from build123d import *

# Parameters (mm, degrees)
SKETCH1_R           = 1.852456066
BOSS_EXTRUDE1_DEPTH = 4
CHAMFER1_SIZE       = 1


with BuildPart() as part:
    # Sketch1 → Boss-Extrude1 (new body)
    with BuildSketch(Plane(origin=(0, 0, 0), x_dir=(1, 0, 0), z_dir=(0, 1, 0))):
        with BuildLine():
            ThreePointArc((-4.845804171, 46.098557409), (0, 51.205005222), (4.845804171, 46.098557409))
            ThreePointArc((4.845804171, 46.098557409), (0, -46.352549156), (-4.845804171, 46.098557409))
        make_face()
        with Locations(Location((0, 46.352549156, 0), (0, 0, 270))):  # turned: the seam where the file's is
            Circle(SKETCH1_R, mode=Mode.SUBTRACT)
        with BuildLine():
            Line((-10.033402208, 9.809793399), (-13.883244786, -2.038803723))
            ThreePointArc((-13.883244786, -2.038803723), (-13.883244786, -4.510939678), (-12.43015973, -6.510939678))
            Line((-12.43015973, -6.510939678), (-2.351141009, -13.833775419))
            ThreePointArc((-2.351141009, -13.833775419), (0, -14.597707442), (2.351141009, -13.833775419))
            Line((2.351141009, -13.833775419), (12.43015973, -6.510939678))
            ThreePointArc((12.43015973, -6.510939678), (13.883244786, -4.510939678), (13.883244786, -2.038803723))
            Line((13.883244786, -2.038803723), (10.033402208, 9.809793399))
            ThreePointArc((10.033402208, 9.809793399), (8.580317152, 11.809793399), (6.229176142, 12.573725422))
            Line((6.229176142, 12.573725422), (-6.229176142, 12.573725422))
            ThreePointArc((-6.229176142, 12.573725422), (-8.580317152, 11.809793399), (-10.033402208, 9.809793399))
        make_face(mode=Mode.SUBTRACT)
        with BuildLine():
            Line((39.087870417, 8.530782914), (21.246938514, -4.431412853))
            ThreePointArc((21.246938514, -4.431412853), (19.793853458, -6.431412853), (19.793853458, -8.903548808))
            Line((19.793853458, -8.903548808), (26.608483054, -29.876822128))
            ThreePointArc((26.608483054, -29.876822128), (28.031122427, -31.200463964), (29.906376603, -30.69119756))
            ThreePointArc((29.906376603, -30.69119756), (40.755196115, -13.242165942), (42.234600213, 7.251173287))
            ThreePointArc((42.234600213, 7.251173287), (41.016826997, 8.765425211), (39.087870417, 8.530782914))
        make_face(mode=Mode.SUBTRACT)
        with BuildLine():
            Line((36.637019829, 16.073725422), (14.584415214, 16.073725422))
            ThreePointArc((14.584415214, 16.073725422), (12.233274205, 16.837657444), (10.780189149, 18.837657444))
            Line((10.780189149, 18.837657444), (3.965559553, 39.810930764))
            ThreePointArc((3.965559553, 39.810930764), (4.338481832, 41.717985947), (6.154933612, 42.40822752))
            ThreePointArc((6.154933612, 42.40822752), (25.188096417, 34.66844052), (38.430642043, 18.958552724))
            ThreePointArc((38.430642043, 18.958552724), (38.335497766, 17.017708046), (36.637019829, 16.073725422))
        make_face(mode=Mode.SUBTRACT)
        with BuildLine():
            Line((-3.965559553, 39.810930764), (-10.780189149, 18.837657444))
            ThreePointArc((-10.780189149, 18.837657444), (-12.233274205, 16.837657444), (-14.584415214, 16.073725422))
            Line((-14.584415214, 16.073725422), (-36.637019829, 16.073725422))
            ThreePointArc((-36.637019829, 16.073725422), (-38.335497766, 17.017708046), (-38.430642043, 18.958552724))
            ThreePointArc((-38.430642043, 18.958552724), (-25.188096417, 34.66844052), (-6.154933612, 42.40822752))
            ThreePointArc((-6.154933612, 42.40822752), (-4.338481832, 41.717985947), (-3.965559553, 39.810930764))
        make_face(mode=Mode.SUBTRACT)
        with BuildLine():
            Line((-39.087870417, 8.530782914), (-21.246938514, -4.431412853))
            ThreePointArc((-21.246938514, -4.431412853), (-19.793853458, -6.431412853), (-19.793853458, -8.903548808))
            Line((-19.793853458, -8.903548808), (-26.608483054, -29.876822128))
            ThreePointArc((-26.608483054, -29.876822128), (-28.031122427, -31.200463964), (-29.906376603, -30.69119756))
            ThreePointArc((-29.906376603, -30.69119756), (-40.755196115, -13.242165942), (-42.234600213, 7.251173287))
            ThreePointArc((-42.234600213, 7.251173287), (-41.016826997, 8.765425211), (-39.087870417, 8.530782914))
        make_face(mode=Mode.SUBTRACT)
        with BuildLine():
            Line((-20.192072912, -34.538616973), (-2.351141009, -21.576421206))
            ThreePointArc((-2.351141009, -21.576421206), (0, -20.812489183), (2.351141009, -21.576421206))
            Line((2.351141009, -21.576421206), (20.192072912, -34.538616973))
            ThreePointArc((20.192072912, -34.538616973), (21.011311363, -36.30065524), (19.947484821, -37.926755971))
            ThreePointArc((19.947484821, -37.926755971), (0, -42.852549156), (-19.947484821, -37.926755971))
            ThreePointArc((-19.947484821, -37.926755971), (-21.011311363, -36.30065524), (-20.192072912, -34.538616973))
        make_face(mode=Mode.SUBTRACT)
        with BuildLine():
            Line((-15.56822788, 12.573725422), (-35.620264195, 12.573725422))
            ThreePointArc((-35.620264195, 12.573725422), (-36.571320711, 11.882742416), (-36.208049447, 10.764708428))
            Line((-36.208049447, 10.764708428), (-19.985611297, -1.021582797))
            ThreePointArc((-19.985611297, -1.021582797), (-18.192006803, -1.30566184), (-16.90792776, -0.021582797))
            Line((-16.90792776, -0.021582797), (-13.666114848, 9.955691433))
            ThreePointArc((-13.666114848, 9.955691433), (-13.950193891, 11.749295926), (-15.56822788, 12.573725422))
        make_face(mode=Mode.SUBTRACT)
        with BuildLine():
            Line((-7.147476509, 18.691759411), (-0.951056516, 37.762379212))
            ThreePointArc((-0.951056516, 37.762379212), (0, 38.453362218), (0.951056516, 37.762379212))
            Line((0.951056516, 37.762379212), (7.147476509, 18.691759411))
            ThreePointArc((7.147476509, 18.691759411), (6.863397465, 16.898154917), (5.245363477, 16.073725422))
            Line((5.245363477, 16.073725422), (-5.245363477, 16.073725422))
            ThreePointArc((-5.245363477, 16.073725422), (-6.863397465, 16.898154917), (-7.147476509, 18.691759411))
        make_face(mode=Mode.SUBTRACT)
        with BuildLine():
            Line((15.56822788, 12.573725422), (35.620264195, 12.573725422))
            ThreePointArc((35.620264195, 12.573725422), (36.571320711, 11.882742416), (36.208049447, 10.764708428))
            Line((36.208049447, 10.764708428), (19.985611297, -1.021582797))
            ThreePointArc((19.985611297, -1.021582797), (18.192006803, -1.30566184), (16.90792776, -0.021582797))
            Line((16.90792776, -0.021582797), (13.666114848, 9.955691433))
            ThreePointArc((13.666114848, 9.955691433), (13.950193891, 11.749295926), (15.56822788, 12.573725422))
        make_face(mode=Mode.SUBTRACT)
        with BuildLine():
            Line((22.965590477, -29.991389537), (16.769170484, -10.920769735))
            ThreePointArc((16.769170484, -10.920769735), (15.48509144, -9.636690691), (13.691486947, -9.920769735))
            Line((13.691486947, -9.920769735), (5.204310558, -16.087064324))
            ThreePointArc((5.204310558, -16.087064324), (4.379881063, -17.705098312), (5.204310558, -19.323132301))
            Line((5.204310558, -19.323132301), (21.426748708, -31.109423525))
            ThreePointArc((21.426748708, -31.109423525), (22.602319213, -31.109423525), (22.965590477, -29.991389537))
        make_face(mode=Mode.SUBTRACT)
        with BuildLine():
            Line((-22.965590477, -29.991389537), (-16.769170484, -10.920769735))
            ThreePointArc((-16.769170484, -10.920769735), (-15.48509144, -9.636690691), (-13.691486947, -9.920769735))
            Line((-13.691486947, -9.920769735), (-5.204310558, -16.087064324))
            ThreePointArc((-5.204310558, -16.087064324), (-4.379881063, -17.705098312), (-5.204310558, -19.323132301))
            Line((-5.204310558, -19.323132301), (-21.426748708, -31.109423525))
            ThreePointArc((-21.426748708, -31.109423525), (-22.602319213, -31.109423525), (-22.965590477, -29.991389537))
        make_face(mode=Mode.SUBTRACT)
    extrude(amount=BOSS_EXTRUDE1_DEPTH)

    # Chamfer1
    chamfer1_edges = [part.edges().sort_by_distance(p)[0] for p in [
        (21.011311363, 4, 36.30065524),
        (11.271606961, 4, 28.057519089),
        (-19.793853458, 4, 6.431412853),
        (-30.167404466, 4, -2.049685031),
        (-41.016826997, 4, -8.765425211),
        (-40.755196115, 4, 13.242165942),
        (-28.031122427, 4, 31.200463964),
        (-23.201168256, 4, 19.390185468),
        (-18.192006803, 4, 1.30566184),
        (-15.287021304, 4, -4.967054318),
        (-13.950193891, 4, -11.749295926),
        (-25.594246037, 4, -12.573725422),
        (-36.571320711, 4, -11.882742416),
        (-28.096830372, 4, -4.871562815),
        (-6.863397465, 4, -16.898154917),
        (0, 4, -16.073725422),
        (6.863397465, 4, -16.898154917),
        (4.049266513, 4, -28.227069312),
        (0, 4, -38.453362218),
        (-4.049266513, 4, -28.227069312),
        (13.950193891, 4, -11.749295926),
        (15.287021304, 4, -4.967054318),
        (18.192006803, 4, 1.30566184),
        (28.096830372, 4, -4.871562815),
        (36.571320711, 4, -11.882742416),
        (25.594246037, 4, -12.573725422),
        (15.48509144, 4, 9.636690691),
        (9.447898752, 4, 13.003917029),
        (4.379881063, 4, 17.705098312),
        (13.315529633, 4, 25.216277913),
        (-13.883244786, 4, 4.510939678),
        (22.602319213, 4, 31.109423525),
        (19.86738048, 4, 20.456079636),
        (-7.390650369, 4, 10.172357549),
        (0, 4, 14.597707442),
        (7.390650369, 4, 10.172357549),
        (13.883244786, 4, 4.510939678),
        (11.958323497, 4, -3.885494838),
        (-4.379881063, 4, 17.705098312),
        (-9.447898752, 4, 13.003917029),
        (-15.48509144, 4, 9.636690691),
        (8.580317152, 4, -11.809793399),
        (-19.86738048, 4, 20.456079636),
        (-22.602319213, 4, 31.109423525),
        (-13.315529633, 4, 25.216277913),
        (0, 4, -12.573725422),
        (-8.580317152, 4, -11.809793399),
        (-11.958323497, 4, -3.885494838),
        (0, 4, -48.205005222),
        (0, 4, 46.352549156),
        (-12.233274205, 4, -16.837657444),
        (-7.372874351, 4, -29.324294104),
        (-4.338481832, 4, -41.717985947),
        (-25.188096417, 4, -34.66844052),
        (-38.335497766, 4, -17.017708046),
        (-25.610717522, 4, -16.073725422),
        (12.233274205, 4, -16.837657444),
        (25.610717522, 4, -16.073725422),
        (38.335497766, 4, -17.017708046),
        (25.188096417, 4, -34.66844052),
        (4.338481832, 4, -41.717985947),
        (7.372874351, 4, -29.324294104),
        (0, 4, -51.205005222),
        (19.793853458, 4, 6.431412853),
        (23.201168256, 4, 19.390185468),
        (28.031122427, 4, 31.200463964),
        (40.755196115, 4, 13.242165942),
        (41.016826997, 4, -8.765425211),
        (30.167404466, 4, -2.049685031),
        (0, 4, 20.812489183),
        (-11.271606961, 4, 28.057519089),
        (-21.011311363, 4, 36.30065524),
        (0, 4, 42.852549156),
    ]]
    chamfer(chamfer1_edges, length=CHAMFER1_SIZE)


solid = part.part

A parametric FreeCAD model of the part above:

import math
import FreeCAD as App
import Part
import Sketcher

V = App.Vector


def edges_at(feature, points):
    """Names of the edges that pass closest to the given points."""
    edges = feature.Shape.Edges
    near = lambda p: min(range(len(edges)), key=lambda i: edges[i].distToShape(Part.Vertex(*p))[0])
    return sorted({f"Edge{near(p) + 1}" for p in points})

doc = App.newDocument("Part")
body = doc.addObject("PartDesign::Body", "Body")

sketch1 = body.newObject("Sketcher::SketchObject", "Sketch")
sketch1.AttachmentSupport = (doc.getObject("XZ_Plane"), [""])
sketch1.MapMode = "FlatFace"
sketch1.addGeometry([
    Part.ArcOfCircle(Part.Circle(V(0, -46.4, 0), V(0, 0, 1), 4.9), math.radians(177), math.radians(363)),
    Part.ArcOfCircle(Part.Circle(V(0, 0, 0), V(0, 0, 1), 46.4), math.radians(-84), math.radians(264)),
    Part.ArcOfCircle(Part.Circle(V(22, 30.3, 0), V(0, 0, 1), 1), math.radians(-18), math.radians(126)),
    Part.LineSegment(V(21.4, 31.1, 0), V(5.2, 19.3, 0)),
    Part.ArcOfCircle(Part.Circle(V(6.4, 17.7, 0), V(0, 0, 1), 2), math.radians(126), math.radians(234)),
    Part.LineSegment(V(5.2, 16.1, 0), V(13.7, 9.9, 0)),
    Part.ArcOfCircle(Part.Circle(V(14.9, 11.5, 0), V(0, 0, 1), 2), math.radians(-126), math.radians(-18)),
    Part.LineSegment(V(16.8, 10.9, 0), V(23, 30, 0)),
    Part.ArcOfCircle(Part.Circle(V(40.3, -6.9, 0), V(0, 0, 1), 2), math.radians(-126), math.radians(-10)),
    Part.ArcOfCircle(Part.Circle(V(0, 0, 0), V(0, 0, 1), 42.9), math.radians(-10), math.radians(46)),
    Part.ArcOfCircle(Part.Circle(V(28.5, 29.3, 0), V(0, 0, 1), 2), math.radians(46), math.radians(162)),
    Part.LineSegment(V(26.6, 29.9, 0), V(19.8, 8.9, 0)),
    Part.ArcOfCircle(Part.Circle(V(23.6, 7.7, 0), V(0, 0, 1), 4), math.radians(162), math.radians(234)),
    Part.LineSegment(V(21.2, 4.4, 0), V(39.1, -8.5, 0)),
    Part.LineSegment(V(-20.2, 34.5, 0), V(-2.4, 21.6, 0)),
    Part.ArcOfCircle(Part.Circle(V(0, 24.8, 0), V(0, 0, 1), 4), math.radians(-126), math.radians(-54)),
    Part.LineSegment(V(2.4, 21.6, 0), V(20.2, 34.5, 0)),
    Part.ArcOfCircle(Part.Circle(V(19, 36.2, 0), V(0, 0, 1), 2), math.radians(-54), math.radians(62)),
    Part.ArcOfCircle(Part.Circle(V(0, 0, 0), V(0, 0, 1), 42.9), math.radians(62), math.radians(118)),
    Part.ArcOfCircle(Part.Circle(V(-19, 36.2, 0), V(0, 0, 1), 2), math.radians(118), math.radians(234)),
    Part.LineSegment(V(-23, 30, 0), V(-16.8, 10.9, 0)),
    Part.ArcOfCircle(Part.Circle(V(-14.9, 11.5, 0), V(0, 0, 1), 2), math.radians(-162), math.radians(-54)),
    Part.LineSegment(V(-13.7, 9.9, 0), V(-5.2, 16.1, 0)),
    Part.ArcOfCircle(Part.Circle(V(-6.4, 17.7, 0), V(0, 0, 1), 2), math.radians(-54), math.radians(54)),
    Part.LineSegment(V(-5.2, 19.3, 0), V(-21.4, 31.1, 0)),
    Part.ArcOfCircle(Part.Circle(V(-22, 30.3, 0), V(0, 0, 1), 1), math.radians(54), math.radians(198)),
    Part.ArcOfCircle(Part.Circle(V(-6.2, -8.6, 0), V(0, 0, 1), 4), math.radians(-162), math.radians(-90)),
    Part.LineSegment(V(-6.2, -12.6, 0), V(6.2, -12.6, 0)),
    Part.ArcOfCircle(Part.Circle(V(6.2, -8.6, 0), V(0, 0, 1), 4), math.radians(-90), math.radians(-18)),
    Part.LineSegment(V(10, -9.8, 0), V(13.9, 2, 0)),
    Part.ArcOfCircle(Part.Circle(V(10.1, 3.3, 0), V(0, 0, 1), 4), math.radians(-18), math.radians(54)),
    Part.LineSegment(V(12.4, 6.5, 0), V(2.4, 13.8, 0)),
    Part.ArcOfCircle(Part.Circle(V(0, 10.6, 0), V(0, 0, 1), 4), math.radians(54), math.radians(126)),
    Part.LineSegment(V(-2.4, 13.8, 0), V(-12.4, 6.5, 0)),
    Part.ArcOfCircle(Part.Circle(V(-10.1, 3.3, 0), V(0, 0, 1), 4), math.radians(126), math.radians(198)),
    Part.LineSegment(V(-13.9, 2, 0), V(-10, -9.8, 0)),
    Part.LineSegment(V(-39.1, -8.5, 0), V(-21.2, 4.4, 0)),
    Part.ArcOfCircle(Part.Circle(V(-23.6, 7.7, 0), V(0, 0, 1), 4), math.radians(-54), math.radians(18)),
    Part.LineSegment(V(-19.8, 8.9, 0), V(-26.6, 29.9, 0)),
    Part.ArcOfCircle(Part.Circle(V(-28.5, 29.3, 0), V(0, 0, 1), 2), math.radians(18), math.radians(134)),
    Part.ArcOfCircle(Part.Circle(V(0, 0, 0), V(0, 0, 1), 42.9), math.radians(134), math.radians(190)),
    Part.ArcOfCircle(Part.Circle(V(-40.3, -6.9, 0), V(0, 0, 1), 2), math.radians(-170), math.radians(-54)),
    Part.LineSegment(V(15.6, -12.6, 0), V(35.6, -12.6, 0)),
    Part.ArcOfCircle(Part.Circle(V(35.6, -11.6, 0), V(0, 0, 1), 1), math.radians(-90), math.radians(54)),
    Part.LineSegment(V(36.2, -10.8, 0), V(20, 1, 0)),
    Part.ArcOfCircle(Part.Circle(V(18.8, -0.6, 0), V(0, 0, 1), 2), math.radians(54), math.radians(162)),
    Part.LineSegment(V(16.9, 0, 0), V(13.7, -10, 0)),
    Part.ArcOfCircle(Part.Circle(V(15.6, -10.6, 0), V(0, 0, 1), 2), math.radians(162), math.radians(270)),
    Part.LineSegment(V(36.6, -16.1, 0), V(14.6, -16.1, 0)),
    Part.ArcOfCircle(Part.Circle(V(14.6, -20.1, 0), V(0, 0, 1), 4), math.radians(90), math.radians(162)),
    Part.LineSegment(V(10.8, -18.8, 0), V(4, -39.8, 0)),
    Part.ArcOfCircle(Part.Circle(V(5.9, -40.4, 0), V(0, 0, 1), 2), math.radians(162), math.radians(278)),
    Part.ArcOfCircle(Part.Circle(V(0, 0, 0), V(0, 0, 1), 42.9), math.radians(-82), math.radians(-26)),
    Part.ArcOfCircle(Part.Circle(V(36.6, -18.1, 0), V(0, 0, 1), 2), math.radians(-26), math.radians(90)),
    Part.ArcOfCircle(Part.Circle(V(-15.6, -10.6, 0), V(0, 0, 1), 2), math.radians(-90), math.radians(18)),
    Part.LineSegment(V(-13.7, -10, 0), V(-16.9, 0, 0)),
    Part.ArcOfCircle(Part.Circle(V(-18.8, -0.6, 0), V(0, 0, 1), 2), math.radians(18), math.radians(126)),
    Part.LineSegment(V(-20, 1, 0), V(-36.2, -10.8, 0)),
    Part.ArcOfCircle(Part.Circle(V(-35.6, -11.6, 0), V(0, 0, 1), 1), math.radians(126), math.radians(270)),
    Part.LineSegment(V(-35.6, -12.6, 0), V(-15.6, -12.6, 0)),
    Part.LineSegment(V(-7.1, -18.7, 0), V(-1, -37.8, 0)),
    Part.ArcOfCircle(Part.Circle(V(0, -37.5, 0), V(0, 0, 1), 1), math.radians(-162), math.radians(-18)),
    Part.LineSegment(V(1, -37.8, 0), V(7.1, -18.7, 0)),
    Part.ArcOfCircle(Part.Circle(V(5.2, -18.1, 0), V(0, 0, 1), 2), math.radians(-18), math.radians(90)),
    Part.LineSegment(V(5.2, -16.1, 0), V(-5.2, -16.1, 0)),
    Part.ArcOfCircle(Part.Circle(V(-5.2, -18.1, 0), V(0, 0, 1), 2), math.radians(90), math.radians(198)),
    Part.LineSegment(V(-4, -39.8, 0), V(-10.8, -18.8, 0)),
    Part.ArcOfCircle(Part.Circle(V(-14.6, -20.1, 0), V(0, 0, 1), 4), math.radians(18), math.radians(90)),
    Part.LineSegment(V(-14.6, -16.1, 0), V(-36.6, -16.1, 0)),
    Part.ArcOfCircle(Part.Circle(V(-36.6, -18.1, 0), V(0, 0, 1), 2), math.radians(90), math.radians(206)),
    Part.ArcOfCircle(Part.Circle(V(0, 0, 0), V(0, 0, 1), 42.9), math.radians(-154), math.radians(-98)),
    Part.ArcOfCircle(Part.Circle(V(-5.9, -40.4, 0), V(0, 0, 1), 2), math.radians(-98), math.radians(18)),
    Part.Circle(V(0, -46.4, 0), V(0, 0, 1), 1.9),
], False)
sketch1.addConstraint([
    Sketcher.Constraint("Coincident", 0, 1, 1, 2),
    Sketcher.Constraint("Coincident", 1, 1, 0, 2),
    Sketcher.Constraint("Tangent", 2, 2, 3, 1),
    Sketcher.Constraint("Tangent", 3, 2, 4, 1),
    Sketcher.Constraint("Tangent", 4, 2, 5, 1),
    Sketcher.Constraint("Tangent", 5, 2, 6, 1),
    Sketcher.Constraint("Tangent", 6, 2, 7, 1),
    Sketcher.Constraint("Tangent", 7, 2, 2, 1),
    Sketcher.Constraint("Tangent", 8, 2, 9, 1),
    Sketcher.Constraint("Tangent", 9, 2, 10, 1),
    Sketcher.Constraint("Tangent", 10, 2, 11, 1),
    Sketcher.Constraint("Tangent", 11, 2, 12, 1),
    Sketcher.Constraint("Tangent", 12, 2, 13, 1),
    Sketcher.Constraint("Tangent", 13, 2, 8, 1),
    Sketcher.Constraint("Tangent", 14, 2, 15, 1),
    Sketcher.Constraint("Tangent", 15, 2, 16, 1),
    Sketcher.Constraint("Tangent", 16, 2, 17, 1),
    Sketcher.Constraint("Tangent", 17, 2, 18, 1),
    Sketcher.Constraint("Tangent", 18, 2, 19, 1),
    Sketcher.Constraint("Tangent", 19, 2, 14, 1),
    Sketcher.Constraint("Tangent", 20, 2, 21, 1),
    Sketcher.Constraint("Tangent", 21, 2, 22, 1),
    Sketcher.Constraint("Tangent", 22, 2, 23, 1),
    Sketcher.Constraint("Tangent", 23, 2, 24, 1),
    Sketcher.Constraint("Tangent", 24, 2, 25, 1),
    Sketcher.Constraint("Tangent", 25, 2, 20, 1),
    Sketcher.Constraint("Tangent", 26, 2, 27, 1),
    Sketcher.Constraint("Tangent", 27, 2, 28, 1),
    Sketcher.Constraint("Tangent", 28, 2, 29, 1),
    Sketcher.Constraint("Tangent", 29, 2, 30, 1),
    Sketcher.Constraint("Tangent", 30, 2, 31, 1),
    Sketcher.Constraint("Tangent", 31, 2, 32, 1),
    Sketcher.Constraint("Tangent", 32, 2, 33, 1),
    Sketcher.Constraint("Tangent", 33, 2, 34, 1),
    Sketcher.Constraint("Tangent", 34, 2, 35, 1),
    Sketcher.Constraint("Tangent", 35, 2, 26, 1),
    Sketcher.Constraint("Tangent", 36, 2, 37, 1),
    Sketcher.Constraint("Tangent", 37, 2, 38, 1),
    Sketcher.Constraint("Tangent", 38, 2, 39, 1),
    Sketcher.Constraint("Tangent", 39, 2, 40, 1),
    Sketcher.Constraint("Tangent", 40, 2, 41, 1),
    Sketcher.Constraint("Tangent", 41, 2, 36, 1),
    Sketcher.Constraint("Tangent", 42, 2, 43, 1),
    Sketcher.Constraint("Tangent", 43, 2, 44, 1),
    Sketcher.Constraint("Tangent", 44, 2, 45, 1),
    Sketcher.Constraint("Tangent", 45, 2, 46, 1),
    Sketcher.Constraint("Tangent", 46, 2, 47, 1),
    Sketcher.Constraint("Tangent", 47, 2, 42, 1),
    Sketcher.Constraint("Tangent", 48, 2, 49, 1),
    Sketcher.Constraint("Tangent", 49, 2, 50, 1),
    Sketcher.Constraint("Tangent", 50, 2, 51, 1),
    Sketcher.Constraint("Tangent", 51, 2, 52, 1),
    Sketcher.Constraint("Tangent", 52, 2, 53, 1),
    Sketcher.Constraint("Tangent", 53, 2, 48, 1),
    Sketcher.Constraint("Tangent", 54, 2, 55, 1),
    Sketcher.Constraint("Tangent", 55, 2, 56, 1),
    Sketcher.Constraint("Tangent", 56, 2, 57, 1),
    Sketcher.Constraint("Tangent", 57, 2, 58, 1),
    Sketcher.Constraint("Tangent", 58, 2, 59, 1),
    Sketcher.Constraint("Tangent", 59, 2, 54, 1),
    Sketcher.Constraint("Tangent", 60, 2, 61, 1),
    Sketcher.Constraint("Tangent", 61, 2, 62, 1),
    Sketcher.Constraint("Tangent", 62, 2, 63, 1),
    Sketcher.Constraint("Tangent", 63, 2, 64, 1),
    Sketcher.Constraint("Tangent", 64, 2, 65, 1),
    Sketcher.Constraint("Tangent", 65, 2, 60, 1),
    Sketcher.Constraint("Tangent", 66, 2, 67, 1),
    Sketcher.Constraint("Tangent", 67, 2, 68, 1),
    Sketcher.Constraint("Tangent", 68, 2, 69, 1),
    Sketcher.Constraint("Tangent", 69, 2, 70, 1),
    Sketcher.Constraint("Tangent", 70, 2, 71, 1),
    Sketcher.Constraint("Tangent", 71, 2, 66, 1),
    Sketcher.Constraint("Horizontal", 27),
    Sketcher.Constraint("Horizontal", 42),
    Sketcher.Constraint("Horizontal", 48),
    Sketcher.Constraint("Horizontal", 59),
    Sketcher.Constraint("Horizontal", 64),
    Sketcher.Constraint("Horizontal", 68),
    Sketcher.Constraint("Coincident", 1, 3, -1, 1),
    Sketcher.Constraint("Coincident", 9, 3, -1, 1),
    Sketcher.Constraint("Coincident", 18, 3, -1, 1),
    Sketcher.Constraint("Coincident", 40, 3, -1, 1),
    Sketcher.Constraint("Coincident", 52, 3, -1, 1),
    Sketcher.Constraint("Coincident", 70, 3, -1, 1),
    Sketcher.Constraint("Coincident", 72, 3, 0, 3),
    Sketcher.Constraint("Equal", 4, 6),
    Sketcher.Constraint("Equal", 6, 8),
    Sketcher.Constraint("Equal", 8, 10),
    Sketcher.Constraint("Equal", 12, 15),
    Sketcher.Constraint("Equal", 10, 17),
    Sketcher.Constraint("Equal", 9, 18),
    Sketcher.Constraint("Equal", 17, 19),
    Sketcher.Constraint("Equal", 19, 21),
    Sketcher.Constraint("Equal", 21, 23),
    Sketcher.Constraint("Equal", 2, 25),
    Sketcher.Constraint("Equal", 15, 26),
    Sketcher.Constraint("Equal", 26, 28),
    Sketcher.Constraint("Equal", 28, 30),
    Sketcher.Constraint("Equal", 30, 32),
    Sketcher.Constraint("Equal", 32, 34),
    Sketcher.Constraint("Equal", 34, 37),
    Sketcher.Constraint("Equal", 23, 39),
    Sketcher.Constraint("Equal", 18, 40),
    Sketcher.Constraint("Equal", 39, 41),
    Sketcher.Constraint("Equal", 25, 43),
    Sketcher.Constraint("Equal", 41, 45),
    Sketcher.Constraint("Equal", 45, 47),
    Sketcher.Constraint("Equal", 37, 49),
    Sketcher.Constraint("Equal", 47, 51),
    Sketcher.Constraint("Equal", 40, 52),
    Sketcher.Constraint("Equal", 51, 53),
    Sketcher.Constraint("Equal", 53, 54),
    Sketcher.Constraint("Equal", 54, 56),
    Sketcher.Constraint("Equal", 43, 58),
    Sketcher.Constraint("Equal", 58, 61),
    Sketcher.Constraint("Equal", 56, 63),
    Sketcher.Constraint("Equal", 63, 65),
    Sketcher.Constraint("Equal", 49, 67),
    Sketcher.Constraint("Equal", 65, 69),
    Sketcher.Constraint("Equal", 52, 70),
    Sketcher.Constraint("Equal", 69, 71),
    Sketcher.Constraint("Symmetric", 6, 3, 21, 3, -2),
    Sketcher.Constraint("Symmetric", 4, 3, 23, 3, -2),
    Sketcher.Constraint("Symmetric", 2, 3, 25, 3, -2),
    Sketcher.Constraint("Symmetric", 30, 3, 34, 3, -2),
    Sketcher.Constraint("Symmetric", 12, 3, 37, 3, -2),
    Sketcher.Constraint("Symmetric", 47, 3, 54, 3, -2),
    Sketcher.Constraint("Symmetric", 45, 3, 56, 3, -2),
    Sketcher.Constraint("Symmetric", 49, 3, 67, 3, -2),
    Sketcher.Constraint("Symmetric", 14, 2, 15, 2, -2),
    Sketcher.Constraint("Symmetric", 60, 2, 61, 2, -2),
    Sketcher.Constraint("PointOnObject", 0, 3, -2),
    Sketcher.Constraint("PointOnObject", 32, 3, -2),
    Sketcher.Constraint("Parallel", 7, 11),
    Sketcher.Constraint("Parallel", 5, 13),
    Sketcher.Constraint("Parallel", 13, 14),
    Sketcher.Constraint("Parallel", 3, 16),
    Sketcher.Constraint("Parallel", 11, 29),
    Sketcher.Constraint("Parallel", 24, 31),
    Sketcher.Constraint("Parallel", 20, 35),
    Sketcher.Constraint("Parallel", 33, 36),
    Sketcher.Constraint("Parallel", 35, 38),
    Sketcher.Constraint("Parallel", 31, 44),
    Sketcher.Constraint("Parallel", 29, 46),
    Sketcher.Constraint("Parallel", 46, 50),
    Sketcher.Constraint("Parallel", 36, 57),
    Sketcher.Constraint("Parallel", 55, 60),
    Sketcher.Constraint("Parallel", 60, 66),
    Sketcher.Constraint("Horizontal", 53, 3, 63, 3),
    Sketcher.Constraint("Horizontal", 27, 2, 42, 2),
    Sketcher.Constraint("Equal", 3, 7),
    Sketcher.Constraint("Equal", 11, 13),
    Sketcher.Constraint("Equal", 13, 14),
    Sketcher.Constraint("Equal", 29, 31),
    Sketcher.Constraint("Equal", 24, 44),
    Sketcher.Constraint("Equal", 22, 46),
    Sketcher.Constraint("Equal", 38, 50),
    Sketcher.Constraint("Equal", 57, 60),
    Sketcher.Constraint("Radius", 2, 1.0),
    Sketcher.Constraint("Radius", 4, 2.0),
    Sketcher.Constraint("Radius", 12, 4.0),
    Sketcher.Constraint("Radius", 1, 46.352549),
    Sketcher.Constraint("Radius", 9, 42.852549),
    Sketcher.Constraint("Diameter", 72, 3.704912),
    Sketcher.Constraint("Radius", 0, 4.852456),
    Sketcher.Constraint("DistanceY", -1, 1, 4, 3, 17.705098),
    Sketcher.Constraint("DistanceX", -1, 1, 8, 2, 42.2346),
    Sketcher.Constraint("DistanceX", 27, 1, 27, 2, 12.458352),
    Sketcher.Constraint("DistanceX", 42, 1, 42, 2, 20.052036),
    Sketcher.Constraint("DistanceX", 48, 2, 48, 1, 22.052605),
    Sketcher.Constraint("DistanceY", 0, 3, -1, 1, 46.352549),
    Sketcher.Constraint("DistanceX", -1, 1, 4, 3, 6.379881),
    Sketcher.Constraint("DistanceY", -1, 1, 30, 3, 3.274872),
    Sketcher.Constraint("DistanceX", -1, 1, 45, 3, 18.810041),
])
pad1 = body.newObject("PartDesign::Pad", "Pad")
pad1.Profile = sketch1
pad1.Length = 4
pad1.Reversed = True
doc.recompute()

chamfer = body.newObject("PartDesign::Chamfer", "Chamfer")
chamfer.Base = (pad1, edges_at(pad1, [
    (21.011, 4, 36.301),
    (11.272, 4, 28.058),
    (-19.794, 4, 6.431),
    (-30.167, 4, -2.05),
    (-41.017, 4, -8.765),
    (-40.755, 4, 13.242),
    (-28.031, 4, 31.2),
    (-23.201, 4, 19.39),
    (-18.192, 4, 1.306),
    (-15.287, 4, -4.967),
    (-13.95, 4, -11.749),
    (-25.594, 4, -12.574),
    (-36.571, 4, -11.883),
    (-28.097, 4, -4.872),
    (-6.863, 4, -16.898),
    (0, 4, -16.074),
    (6.863, 4, -16.898),
    (4.049, 4, -28.227),
    (0, 4, -38.453),
    (-4.049, 4, -28.227),
    (13.95, 4, -11.749),
    (15.287, 4, -4.967),
    (18.192, 4, 1.306),
    (28.097, 4, -4.872),
    (36.571, 4, -11.883),
    (25.594, 4, -12.574),
    (15.485, 4, 9.637),
    (9.448, 4, 13.004),
    (4.38, 4, 17.705),
    (13.316, 4, 25.216),
    (-13.883, 4, 4.511),
    (22.602, 4, 31.109),
    (19.867, 4, 20.456),
    (-7.391, 4, 10.172),
    (0, 4, 14.598),
    (7.391, 4, 10.172),
    (13.883, 4, 4.511),
    (11.958, 4, -3.885),
    (-4.38, 4, 17.705),
    (-9.448, 4, 13.004),
    (-15.485, 4, 9.637),
    (8.58, 4, -11.81),
    (-19.867, 4, 20.456),
    (-22.602, 4, 31.109),
    (-13.316, 4, 25.216),
    (0, 4, -12.574),
    (-8.58, 4, -11.81),
    (-11.958, 4, -3.885),
    (0, 4, -48.205),
    (0, 4, 46.353),
    (-12.233, 4, -16.838),
    (-7.373, 4, -29.324),
    (-4.338, 4, -41.718),
    (-25.188, 4, -34.668),
    (-38.335, 4, -17.018),
    (-25.611, 4, -16.074),
    (12.233, 4, -16.838),
    (25.611, 4, -16.074),
    (38.335, 4, -17.018),
    (25.188, 4, -34.668),
    (4.338, 4, -41.718),
    (7.373, 4, -29.324),
    (0, 4, -51.205),
    (19.794, 4, 6.431),
    (23.201, 4, 19.39),
    (28.031, 4, 31.2),
    (40.755, 4, 13.242),
    (41.017, 4, -8.765),
    (30.167, 4, -2.05),
    (0, 4, 20.812),
    (-11.272, 4, 28.058),
    (-21.011, 4, 36.301),
    (0, 4, 42.853),
]))
chamfer.Size = 1

doc.recompute()
